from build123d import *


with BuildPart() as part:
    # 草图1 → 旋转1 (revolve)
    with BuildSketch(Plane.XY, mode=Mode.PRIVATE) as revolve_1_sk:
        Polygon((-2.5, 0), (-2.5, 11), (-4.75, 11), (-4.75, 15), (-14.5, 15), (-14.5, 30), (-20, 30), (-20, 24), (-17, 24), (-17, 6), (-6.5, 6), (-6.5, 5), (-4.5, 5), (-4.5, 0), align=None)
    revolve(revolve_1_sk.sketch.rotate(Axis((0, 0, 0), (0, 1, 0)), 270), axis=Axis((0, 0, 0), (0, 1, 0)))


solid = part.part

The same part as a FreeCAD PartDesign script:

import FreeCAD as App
import Part
import Sketcher
Q = App.Units.Quantity


def add_polygon(sketch, points):
    """Adds a closed chain of lines whose ends are joined by coincident constraints."""
    first, n = sketch.GeometryCount, len(points)
    for a, b in zip(points, points[1:] + points[:1]):
        sketch.addGeometry(Part.LineSegment(App.Vector(*a, 0), App.Vector(*b, 0)), False)
    for i in range(n):
        sketch.addConstraint(Sketcher.Constraint("Coincident", first + i, 2, first + (i + 1) % n, 1))

doc = App.newDocument("Part")
body = doc.addObject("PartDesign::Body", "Body")

# Sketch on XY plane
sketch1 = body.newObject("Sketcher::SketchObject", "Sketch")
sketch1.AttachmentSupport = (doc.getObject("XY_Plane"), [""])
sketch1.MapMode = "FlatFace"
add_polygon(sketch1, [(-2.5, 0), (-2.5, 11), (-4.8, 11), (-4.8, 15), (-14.5, 15), (-14.5, 30), (-20, 30), (-20, 24), (-17, 24), (-17, 6), (-6.5, 6), (-6.5, 5), (-4.5, 5), (-4.5, 0)])  # lines 0-13
sketch1.addConstraint(Sketcher.Constraint("Vertical", 0))
sketch1.addConstraint(Sketcher.Constraint("Horizontal", 1))
sketch1.addConstraint(Sketcher.Constraint("Vertical", 2))
sketch1.addConstraint(Sketcher.Constraint("Horizontal", 3))
sketch1.addConstraint(Sketcher.Constraint("Vertical", 4))
sketch1.addConstraint(Sketcher.Constraint("Horizontal", 5))
sketch1.addConstraint(Sketcher.Constraint("Vertical", 6))
sketch1.addConstraint(Sketcher.Constraint("Horizontal", 7))
sketch1.addConstraint(Sketcher.Constraint("Vertical", 8))
sketch1.addConstraint(Sketcher.Constraint("Horizontal", 9))
sketch1.addConstraint(Sketcher.Constraint("Vertical", 10))
sketch1.addConstraint(Sketcher.Constraint("Horizontal", 11))
sketch1.addConstraint(Sketcher.Constraint("Vertical", 12))
sketch1.addConstraint(Sketcher.Constraint("Horizontal", 13))
sketch1.addConstraint(Sketcher.Constraint("PointOnObject", 12, 2, -1))
sketch1.addConstraint(Sketcher.Constraint("Equal", 11, 13))
sketch1.addConstraint(Sketcher.Constraint("DistanceX", 7, 1, 7, 2, Q("3 mm")))
sketch1.addConstraint(Sketcher.Constraint("DistanceX", 11, 1, 11, 2, Q("2 mm")))
sketch1.addConstraint(Sketcher.Constraint("DistanceY", 0, 1, 0, 2, Q("11 mm")))
sketch1.addConstraint(Sketcher.Constraint("DistanceY", 2, 1, 2, 2, Q("4 mm")))
sketch1.addConstraint(Sketcher.Constraint("DistanceY", 4, 1, 4, 2, Q("15 mm")))
sketch1.addConstraint(Sketcher.Constraint("DistanceY", 6, 2, 6, 1, Q("6 mm")))
sketch1.addConstraint(Sketcher.Constraint("DistanceY", 8, 2, 8, 1, Q("18 mm")))
sketch1.addConstraint(Sketcher.Constraint("DistanceY", 10, 2, 10, 1, Q("1 mm")))
sketch1.addConstraint(Sketcher.Constraint("DistanceX", 5, 2, 5, 1, Q("5.5 mm")))
sketch1.addConstraint(Sketcher.Constraint("DistanceX", 9, 1, 9, 2, Q("10.5 mm")))
sketch1.addConstraint(Sketcher.Constraint("DistanceX", 5, 2, -1, 1, Q("20 mm")))
sketch1.addConstraint(Sketcher.Constraint("DistanceX", 1, 2, 1, 1, Q("2.25 mm")))
revolution = body.newObject("PartDesign::Revolution", "Revolution")
revolution.Profile = sketch1
revolution.ReferenceAxis = (sketch1, ["V_Axis"])
revolution.Angle = 360

doc.recompute()
